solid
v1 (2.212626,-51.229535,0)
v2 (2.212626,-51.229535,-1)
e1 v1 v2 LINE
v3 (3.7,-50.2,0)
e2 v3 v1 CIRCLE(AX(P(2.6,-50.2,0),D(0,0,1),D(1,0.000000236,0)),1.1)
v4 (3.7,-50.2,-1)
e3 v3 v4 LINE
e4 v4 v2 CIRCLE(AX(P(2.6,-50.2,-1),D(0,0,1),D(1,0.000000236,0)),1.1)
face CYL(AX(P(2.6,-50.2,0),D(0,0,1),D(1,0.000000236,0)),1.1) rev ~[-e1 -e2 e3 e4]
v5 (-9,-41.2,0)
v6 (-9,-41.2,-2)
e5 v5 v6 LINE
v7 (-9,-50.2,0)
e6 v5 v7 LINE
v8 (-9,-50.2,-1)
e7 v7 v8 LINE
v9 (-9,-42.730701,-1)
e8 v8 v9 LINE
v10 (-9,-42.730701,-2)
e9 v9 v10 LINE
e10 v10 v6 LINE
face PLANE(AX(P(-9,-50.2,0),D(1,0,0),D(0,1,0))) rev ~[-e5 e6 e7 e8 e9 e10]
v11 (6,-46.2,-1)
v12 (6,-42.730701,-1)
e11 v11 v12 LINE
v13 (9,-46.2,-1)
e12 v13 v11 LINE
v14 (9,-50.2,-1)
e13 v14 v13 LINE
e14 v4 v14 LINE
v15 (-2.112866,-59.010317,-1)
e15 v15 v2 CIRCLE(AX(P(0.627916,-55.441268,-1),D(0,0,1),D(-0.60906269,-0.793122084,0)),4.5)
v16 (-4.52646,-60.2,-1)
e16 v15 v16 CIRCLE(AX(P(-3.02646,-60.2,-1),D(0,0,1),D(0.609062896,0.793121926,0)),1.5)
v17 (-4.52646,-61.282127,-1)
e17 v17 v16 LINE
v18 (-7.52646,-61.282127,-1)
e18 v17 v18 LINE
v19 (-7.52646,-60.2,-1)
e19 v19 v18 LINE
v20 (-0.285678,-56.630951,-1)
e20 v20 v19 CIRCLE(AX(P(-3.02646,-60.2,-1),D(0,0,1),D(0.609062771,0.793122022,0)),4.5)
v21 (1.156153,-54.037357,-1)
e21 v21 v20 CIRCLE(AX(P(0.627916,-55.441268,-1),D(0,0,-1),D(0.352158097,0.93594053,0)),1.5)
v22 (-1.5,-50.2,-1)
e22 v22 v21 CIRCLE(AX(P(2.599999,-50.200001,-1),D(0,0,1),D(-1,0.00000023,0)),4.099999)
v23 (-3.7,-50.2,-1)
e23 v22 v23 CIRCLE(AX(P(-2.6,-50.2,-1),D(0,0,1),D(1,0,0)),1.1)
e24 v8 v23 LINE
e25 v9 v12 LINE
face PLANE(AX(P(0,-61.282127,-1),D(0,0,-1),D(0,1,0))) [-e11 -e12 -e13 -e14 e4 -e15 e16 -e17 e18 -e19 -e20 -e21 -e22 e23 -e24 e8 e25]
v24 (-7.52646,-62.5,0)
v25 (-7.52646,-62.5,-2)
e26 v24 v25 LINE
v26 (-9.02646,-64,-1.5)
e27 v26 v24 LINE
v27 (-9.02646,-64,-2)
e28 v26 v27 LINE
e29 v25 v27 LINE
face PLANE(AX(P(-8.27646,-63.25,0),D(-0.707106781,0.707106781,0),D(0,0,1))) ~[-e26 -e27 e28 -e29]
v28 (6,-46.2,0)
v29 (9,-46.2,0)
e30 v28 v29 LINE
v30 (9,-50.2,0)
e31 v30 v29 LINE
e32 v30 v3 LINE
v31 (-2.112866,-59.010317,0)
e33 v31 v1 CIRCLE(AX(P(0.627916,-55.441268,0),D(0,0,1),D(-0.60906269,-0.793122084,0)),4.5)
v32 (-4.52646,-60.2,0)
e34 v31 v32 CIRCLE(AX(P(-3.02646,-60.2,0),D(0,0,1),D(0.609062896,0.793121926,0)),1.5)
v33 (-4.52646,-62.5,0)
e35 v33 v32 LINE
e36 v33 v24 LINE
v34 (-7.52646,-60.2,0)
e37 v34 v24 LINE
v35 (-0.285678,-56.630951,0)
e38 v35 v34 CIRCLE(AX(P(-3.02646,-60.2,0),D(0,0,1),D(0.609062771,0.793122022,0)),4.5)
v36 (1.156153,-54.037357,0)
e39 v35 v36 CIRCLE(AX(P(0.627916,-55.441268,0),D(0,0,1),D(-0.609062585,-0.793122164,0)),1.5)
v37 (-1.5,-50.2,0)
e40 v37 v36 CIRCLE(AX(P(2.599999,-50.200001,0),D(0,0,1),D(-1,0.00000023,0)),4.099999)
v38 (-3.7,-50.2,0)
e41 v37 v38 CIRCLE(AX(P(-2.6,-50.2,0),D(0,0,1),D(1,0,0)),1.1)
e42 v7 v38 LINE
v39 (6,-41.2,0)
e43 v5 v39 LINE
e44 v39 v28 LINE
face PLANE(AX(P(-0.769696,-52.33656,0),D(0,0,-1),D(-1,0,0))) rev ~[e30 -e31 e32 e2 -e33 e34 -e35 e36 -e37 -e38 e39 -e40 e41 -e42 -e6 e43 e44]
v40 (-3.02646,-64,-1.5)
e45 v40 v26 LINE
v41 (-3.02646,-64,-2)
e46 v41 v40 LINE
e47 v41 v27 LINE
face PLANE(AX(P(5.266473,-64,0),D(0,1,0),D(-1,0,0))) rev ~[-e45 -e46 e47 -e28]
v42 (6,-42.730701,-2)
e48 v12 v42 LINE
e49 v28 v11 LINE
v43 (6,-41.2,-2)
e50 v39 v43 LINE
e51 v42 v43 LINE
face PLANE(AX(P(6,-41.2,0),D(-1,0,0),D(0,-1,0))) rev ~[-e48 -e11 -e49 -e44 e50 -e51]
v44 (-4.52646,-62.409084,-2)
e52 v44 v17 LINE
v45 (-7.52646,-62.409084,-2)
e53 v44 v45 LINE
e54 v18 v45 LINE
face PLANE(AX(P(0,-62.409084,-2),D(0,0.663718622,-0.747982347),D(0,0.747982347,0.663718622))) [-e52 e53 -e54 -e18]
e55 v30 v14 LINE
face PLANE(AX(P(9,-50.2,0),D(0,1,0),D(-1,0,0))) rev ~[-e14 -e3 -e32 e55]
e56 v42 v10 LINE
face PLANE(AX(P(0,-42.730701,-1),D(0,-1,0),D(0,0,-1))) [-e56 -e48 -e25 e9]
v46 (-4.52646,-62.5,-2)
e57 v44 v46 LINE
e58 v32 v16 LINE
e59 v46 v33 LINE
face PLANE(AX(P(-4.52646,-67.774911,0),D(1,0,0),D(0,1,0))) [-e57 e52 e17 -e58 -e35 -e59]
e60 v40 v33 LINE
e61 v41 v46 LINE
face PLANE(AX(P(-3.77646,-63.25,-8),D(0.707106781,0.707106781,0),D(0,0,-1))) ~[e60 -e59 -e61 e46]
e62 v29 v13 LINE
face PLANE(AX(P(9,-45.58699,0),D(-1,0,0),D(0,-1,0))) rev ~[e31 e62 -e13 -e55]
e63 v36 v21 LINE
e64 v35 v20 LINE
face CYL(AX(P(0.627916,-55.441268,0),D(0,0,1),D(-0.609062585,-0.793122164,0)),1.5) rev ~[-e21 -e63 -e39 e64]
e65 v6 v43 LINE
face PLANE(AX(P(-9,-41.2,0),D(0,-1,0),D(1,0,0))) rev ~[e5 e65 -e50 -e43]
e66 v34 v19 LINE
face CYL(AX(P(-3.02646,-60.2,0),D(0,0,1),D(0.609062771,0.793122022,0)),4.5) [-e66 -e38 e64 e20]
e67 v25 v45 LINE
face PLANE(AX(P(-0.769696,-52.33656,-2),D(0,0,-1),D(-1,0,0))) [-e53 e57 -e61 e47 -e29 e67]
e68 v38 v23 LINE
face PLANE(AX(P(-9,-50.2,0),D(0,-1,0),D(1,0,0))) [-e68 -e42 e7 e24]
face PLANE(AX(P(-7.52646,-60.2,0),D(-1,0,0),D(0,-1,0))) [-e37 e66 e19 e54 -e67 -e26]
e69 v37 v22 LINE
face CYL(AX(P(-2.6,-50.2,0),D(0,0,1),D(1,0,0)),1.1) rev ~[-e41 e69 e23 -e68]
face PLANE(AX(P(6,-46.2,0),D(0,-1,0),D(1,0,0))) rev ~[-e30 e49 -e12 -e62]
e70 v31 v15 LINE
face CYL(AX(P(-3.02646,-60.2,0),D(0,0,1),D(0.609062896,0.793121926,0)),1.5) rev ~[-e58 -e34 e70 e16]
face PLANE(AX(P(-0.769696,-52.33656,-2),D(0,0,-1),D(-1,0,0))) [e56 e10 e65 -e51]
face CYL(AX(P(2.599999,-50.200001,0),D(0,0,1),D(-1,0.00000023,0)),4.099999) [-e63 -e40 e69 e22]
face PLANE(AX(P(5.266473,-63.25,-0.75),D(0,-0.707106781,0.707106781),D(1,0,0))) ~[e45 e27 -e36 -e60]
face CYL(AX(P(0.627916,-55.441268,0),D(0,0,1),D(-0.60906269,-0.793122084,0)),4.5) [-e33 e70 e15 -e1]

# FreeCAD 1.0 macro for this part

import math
import FreeCAD as App
import Part
import Sketcher


def edges_at(feature, points):
    """Names of the edges that pass closest to the given points."""
    edges = feature.Shape.Edges
    near = lambda p: min(range(len(edges)), key=lambda i: edges[i].distToShape(Part.Vertex(*p))[0])
    return sorted({f"Edge{near(p) + 1}" for p in points})


def add_polygon(sketch, points):
    """Adds a closed chain of lines whose ends are joined by coincident constraints."""
    first, n = sketch.GeometryCount, len(points)
    for a, b in zip(points, points[1:] + points[:1]):
        sketch.addGeometry(Part.LineSegment(App.Vector(*a, 0), App.Vector(*b, 0)), False)
    for i in range(n):
        sketch.addConstraint(Sketcher.Constraint("Coincident", first + i, 2, first + (i + 1) % n, 1))

doc = App.newDocument("Part")
body = doc.addObject("PartDesign::Body", "Body")

# Sketch on XZ plane
sketch1 = doc.addObject("Sketcher::SketchObject", "Sketch")
body.addObject(sketch1)
sketch1.AttachmentSupport = (doc.XZ_Plane, [""])
sketch1.MapMode = "FlatFace"
add_polygon(sketch1, [(-28, 0), (-28, -12), (28, -12), (28, 0)])  # lines 0-3
sketch1.addConstraint([
    Sketcher.Constraint("Vertical", 0),
    Sketcher.Constraint("Horizontal", 1),
    Sketcher.Constraint("Vertical", 2),
    Sketcher.Constraint("Horizontal", 3),
    Sketcher.Constraint("Symmetric", 2, 2, 3, 2, -1, 1),
    Sketcher.Constraint("DistanceX", 1, 1, 1, 2, 56.0),
    Sketcher.Constraint("DistanceY", 0, 2, 0, 1, 12.0),
])
pad1 = doc.addObject("PartDesign::Pad", "Pad")
body.addObject(pad1)
pad1.Profile = sketch1
pad1.Length = 64

# Sketch on XY plane
sketch2 = doc.addObject("Sketcher::SketchObject", "Sketch001")
body.addObject(sketch2)
sketch2.AttachmentSupport = (doc.XY_Plane, [""])
sketch2.MapMode = "FlatFace"
add_polygon(sketch2, [(-24.2, 0), (-24.2, -57.2), (-17.9, -57.2), (-17.9, -39.2), (17.9, -39.2), (17.9, -57.2), (24.2, -57.2), (24.2, 0)])  # lines 0-7
sketch2.addGeometry(Part.LineSegment(App.Vector(-9, -41.2, 0), App.Vector(-9, -50.2, 0)), False)  # 8
sketch2.addGeometry(Part.LineSegment(App.Vector(-9, -50.2, 0), App.Vector(-3.7, -50.2, 0)), False)  # 9
sketch2.addGeometry(Part.ArcOfCircle(Part.Circle(App.Vector(-2.6, -50.2, 0), App.Vector(0, 0, 1), 1.1), math.radians(0), math.radians(180)), False)  # 10
sketch2.addGeometry(Part.ArcOfCircle(Part.Circle(App.Vector(2.6, -50.2, 0), App.Vector(0, 0, 1), 4.1), math.radians(180), math.radians(249)), False)  # 11
sketch2.addGeometry(Part.ArcOfCircle(Part.Circle(App.Vector(0.6, -55.4, 0), App.Vector(0, 0, 1), 1.5), math.radians(-128), math.radians(69)), False)  # 12
sketch2.addGeometry(Part.ArcOfCircle(Part.Circle(App.Vector(-3, -60.2, 0), App.Vector(0, 0, 1), 4.5), math.radians(52), math.radians(180)), False)  # 13
sketch2.addGeometry(Part.LineSegment(App.Vector(-7.5, -60.2, 0), App.Vector(-7.5, -67.8, 0)), False)  # 14
sketch2.addGeometry(Part.LineSegment(App.Vector(-7.5, -67.8, 0), App.Vector(-4.5, -67.8, 0)), False)  # 15
sketch2.addGeometry(Part.LineSegment(App.Vector(-4.5, -67.8, 0), App.Vector(-4.5, -60.2, 0)), False)  # 16
sketch2.addGeometry(Part.ArcOfCircle(Part.Circle(App.Vector(-3, -60.2, 0), App.Vector(0, 0, 1), 1.5), math.radians(52), math.radians(180)), False)  # 17
sketch2.addGeometry(Part.ArcOfCircle(Part.Circle(App.Vector(0.6, -55.4, 0), App.Vector(0, 0, 1), 4.5), math.radians(-128), math.radians(69)), False)  # 18
sketch2.addGeometry(Part.ArcOfCircle(Part.Circle(App.Vector(2.6, -50.2, 0), App.Vector(0, 0, 1), 1.1), math.radians(0), math.radians(249)), False)  # 19
sketch2.addGeometry(Part.LineSegment(App.Vector(3.7, -50.2, 0), App.Vector(9, -50.2, 0)), False)  # 20
sketch2.addGeometry(Part.LineSegment(App.Vector(9, -50.2, 0), App.Vector(9, -46.2, 0)), False)  # 21
sketch2.addGeometry(Part.LineSegment(App.Vector(9, -46.2, 0), App.Vector(6, -46.2, 0)), False)  # 22
sketch2.addGeometry(Part.LineSegment(App.Vector(6, -46.2, 0), App.Vector(6, -41.2, 0)), False)  # 23
sketch2.addGeometry(Part.LineSegment(App.Vector(6, -41.2, 0), App.Vector(-9, -41.2, 0)), False)  # 24
sketch2.addConstraint([
    Sketcher.Constraint("Coincident", 8, 2, 9, 1),
    Sketcher.Constraint("Coincident", 9, 2, 10, 2),
    Sketcher.Constraint("Tangent", 10, 1, 11, 1),
    Sketcher.Constraint("Tangent", 11, 2, 12, 2),
    Sketcher.Constraint("Tangent", 12, 1, 13, 1),
    Sketcher.Constraint("Tangent", 13, 2, 14, 1),
    Sketcher.Constraint("Coincident", 14, 2, 15, 1),
    Sketcher.Constraint("Coincident", 15, 2, 16, 1),
    Sketcher.Constraint("Tangent", 16, 2, 17, 2),
    Sketcher.Constraint("Tangent", 17, 1, 18, 1),
    Sketcher.Constraint("Tangent", 18, 2, 19, 2),
    Sketcher.Constraint("Coincident", 19, 1, 20, 1),
    Sketcher.Constraint("Coincident", 20, 2, 21, 1),
    Sketcher.Constraint("Coincident", 21, 2, 22, 1),
    Sketcher.Constraint("Coincident", 22, 2, 23, 1),
    Sketcher.Constraint("Coincident", 23, 2, 24, 1),
    Sketcher.Constraint("Coincident", 24, 2, 8, 1),
    Sketcher.Constraint("Vertical", 0),
    Sketcher.Constraint("Horizontal", 1),
    Sketcher.Constraint("Vertical", 2),
    Sketcher.Constraint("Horizontal", 3),
    Sketcher.Constraint("Vertical", 4),
    Sketcher.Constraint("Horizontal", 5),
    Sketcher.Constraint("Vertical", 6),
    Sketcher.Constraint("Horizontal", 7),
    Sketcher.Constraint("Vertical", 8),
    Sketcher.Constraint("Horizontal", 9),
    Sketcher.Constraint("Vertical", 14),
    Sketcher.Constraint("Horizontal", 15),
    Sketcher.Constraint("Vertical", 16),
    Sketcher.Constraint("Horizontal", 20),
    Sketcher.Constraint("Vertical", 21),
    Sketcher.Constraint("Horizontal", 22),
    Sketcher.Constraint("Vertical", 23),
    Sketcher.Constraint("Horizontal", 24),
    Sketcher.Constraint("Coincident", 17, 3, 13, 3),
    Sketcher.Constraint("Coincident", 18, 3, 12, 3),
    Sketcher.Constraint("Coincident", 19, 3, 11, 3),
    Sketcher.Constraint("Equal", 12, 17),
    Sketcher.Constraint("Equal", 10, 19),
    Sketcher.Constraint("Symmetric", 6, 2, 7, 2, -1, 1),
    Sketcher.Constraint("Symmetric", 10, 3, 11, 3, -2),
    Sketcher.Constraint("Symmetric", 1, 2, 4, 2, -2),
    Sketcher.Constraint("Symmetric", 8, 2, 20, 2, -2),
    Sketcher.Constraint("Horizontal", 19, 3, 8, 2),
    Sketcher.Constraint("Equal", 15, 22),
    Sketcher.Constraint("Radius", 10, 1.1),
    Sketcher.Constraint("Radius", 11, 4.099999),
    Sketcher.Constraint("Radius", 12, 1.5),
    Sketcher.Constraint("DistanceX", 24, 2, 24, 1, 15.0),
    Sketcher.Constraint("DistanceY", 2, 1, 2, 2, 18.0),
    Sketcher.Constraint("DistanceY", 8, 2, 8, 1, 9.0),
    Sketcher.Constraint("DistanceY", 21, 1, 21, 2, 4.0),
    Sketcher.Constraint("DistanceX", 1, 1, 1, 2, 6.3),
    Sketcher.Constraint("DistanceX", 3, 1, 3, 2, 35.8),
    Sketcher.Constraint("DistanceY", 0, 2, 0, 1, 57.2),
    Sketcher.Constraint("DistanceY", 13, 3, 10, 3, 10.0),
    Sketcher.Constraint("DistanceY", 13, 3, 0, 2, 3.0),
    Sketcher.Constraint("DistanceY", 14, 2, 14, 1, 7.574911),
    Sketcher.Constraint("DistanceX", 13, 3, -1, 1, 3.02646),
])
pocket1 = doc.addObject("PartDesign::Pocket", "Pocket")
body.addObject(pocket1)
pocket1.Profile = sketch2
pocket1.Length = 8

# Sketch on XY plane
sketch3 = doc.addObject("Sketcher::SketchObject", "Sketch002")
body.addObject(sketch3)
sketch3.AttachmentSupport = (doc.XY_Plane, [""])
sketch3.MapMode = "FlatFace"
add_polygon(sketch3, [(-22.6, -12), (-25.2, -12), (-25.2, -58), (-21.2, -58), (-21.2, -13.4)])  # lines 0-4
add_polygon(sketch3, [(25.2, -12), (22.6, -12), (21.2, -13.4), (21.2, -58), (25.2, -58)])  # lines 5-9
sketch3.addConstraint([
    Sketcher.Constraint("Horizontal", 0),
    Sketcher.Constraint("Vertical", 1),
    Sketcher.Constraint("Horizontal", 2),
    Sketcher.Constraint("Vertical", 3),
    Sketcher.Constraint("Horizontal", 5),
    Sketcher.Constraint("Vertical", 7),
    Sketcher.Constraint("Horizontal", 8),
    Sketcher.Constraint("Vertical", 9),
    Sketcher.Constraint("Symmetric", 4, 2, 5, 2, -2),
    Sketcher.Constraint("Symmetric", 3, 2, 6, 2, -2),
    Sketcher.Constraint("Symmetric", 1, 2, 8, 2, -2),
    Sketcher.Constraint("Perpendicular", 4, 6),
    Sketcher.Constraint("DistanceX", 2, 1, 2, 2, 4.0),
    Sketcher.Constraint("DistanceY", 1, 2, 1, 1, 46.0),
    Sketcher.Constraint("Distance", 4, 2.000001),
    Sketcher.Constraint("DistanceY", 0, 2, -1, 1, 12.0),
    Sketcher.Constraint("DistanceX", 0, 2, -1, 1, 25.2),
])
pad2 = doc.addObject("PartDesign::Pad", "Pad001")
body.addObject(pad2)
pad2.Profile = sketch3
pad2.Length = 4.5
pad2.Reversed = True

# Sketch on XY plane
sketch4 = doc.addObject("Sketcher::SketchObject", "Sketch003")
body.addObject(sketch4)
sketch4.AttachmentSupport = (doc.XY_Plane, [""])
sketch4.MapMode = "FlatFace"
sketch4.addGeometry(Part.Circle(App.Vector(-12.5, -56, 0), App.Vector(0, 0, 1), 2), False)  # 0
sketch4.addGeometry(Part.Circle(App.Vector(12.5, -56, 0), App.Vector(0, 0, 1), 2), False)  # 1
sketch4.addGeometry(Part.LineSegment(App.Vector(-12.2, -29, 0), App.Vector(-12.2, -49.5, 0)), False)  # 2
sketch4.addGeometry(Part.LineSegment(App.Vector(-12.2, -49.5, 0), App.Vector(-3.8, -49.5, 0)), False)  # 3
sketch4.addGeometry(Part.LineSegment(App.Vector(-3.8, -49.5, 0), App.Vector(-3.8, -49, 0)), False)  # 4
sketch4.addGeometry(Part.LineSegment(App.Vector(-3.8, -49, 0), App.Vector(-11.2, -49, 0)), False)  # 5
sketch4.addGeometry(Part.ArcOfCircle(Part.Circle(App.Vector(-11.2, -48.5, 0), App.Vector(0, 0, 1), 0.5), math.radians(-180), math.radians(-90)), False)  # 6
sketch4.addGeometry(Part.LineSegment(App.Vector(-11.8, -48.5, 0), App.Vector(-11.8, -29, 0)), False)  # 7
sketch4.addGeometry(Part.LineSegment(App.Vector(-11.8, -29, 0), App.Vector(-12.2, -29, 0)), False)  # 8
sketch4.addGeometry(Part.LineSegment(App.Vector(12.2, -49.5, 0), App.Vector(12.2, -29, 0)), False)  # 9
sketch4.addGeometry(Part.LineSegment(App.Vector(12.2, -29, 0), App.Vector(11.8, -29, 0)), False)  # 10
sketch4.addGeometry(Part.LineSegment(App.Vector(11.8, -29, 0), App.Vector(11.8, -48.5, 0)), False)  # 11
sketch4.addGeometry(Part.ArcOfCircle(Part.Circle(App.Vector(11.2, -48.5, 0), App.Vector(0, 0, 1), 0.5), math.radians(-90), math.radians(0)), False)  # 12
sketch4.addGeometry(Part.LineSegment(App.Vector(11.2, -49, 0), App.Vector(3.8, -49, 0)), False)  # 13
sketch4.addGeometry(Part.LineSegment(App.Vector(3.8, -49, 0), App.Vector(3.8, -49.5, 0)), False)  # 14
sketch4.addGeometry(Part.LineSegment(App.Vector(3.8, -49.5, 0), App.Vector(12.2, -49.5, 0)), False)  # 15
add_polygon(sketch4, [(-15, -3.8), (-15, -8.8), (15, -8.8), (15, -3.8)])  # lines 16-19
sketch4.addConstraint([
    Sketcher.Constraint("Coincident", 2, 2, 3, 1),
    Sketcher.Constraint("Coincident", 3, 2, 4, 1),
    Sketcher.Constraint("Coincident", 4, 2, 5, 1),
    Sketcher.Constraint("Coincident", 5, 2, 6, 2),
    Sketcher.Constraint("Coincident", 6, 1, 7, 1),
    Sketcher.Constraint("Coincident", 7, 2, 8, 1),
    Sketcher.Constraint("Coincident", 8, 2, 2, 1),
    Sketcher.Constraint("Coincident", 9, 2, 10, 1),
    Sketcher.Constraint("Coincident", 10, 2, 11, 1),
    Sketcher.Constraint("Coincident", 11, 2, 12, 2),
    Sketcher.Constraint("Coincident", 12, 1, 13, 1),
    Sketcher.Constraint("Coincident", 13, 2, 14, 1),
    Sketcher.Constraint("Coincident", 14, 2, 15, 1),
    Sketcher.Constraint("Coincident", 15, 2, 9, 1),
    Sketcher.Constraint("Vertical", 2),
    Sketcher.Constraint("Horizontal", 3),
    Sketcher.Constraint("Vertical", 4),
    Sketcher.Constraint("Horizontal", 5),
    Sketcher.Constraint("Vertical", 7),
    Sketcher.Constraint("Horizontal", 8),
    Sketcher.Constraint("Vertical", 9),
    Sketcher.Constraint("Horizontal", 10),
    Sketcher.Constraint("Vertical", 11),
    Sketcher.Constraint("Horizontal", 13),
    Sketcher.Constraint("Vertical", 14),
    Sketcher.Constraint("Horizontal", 15),
    Sketcher.Constraint("Vertical", 16),
    Sketcher.Constraint("Horizontal", 17),
    Sketcher.Constraint("Vertical", 18),
    Sketcher.Constraint("Horizontal", 19),
    Sketcher.Constraint("Equal", 0, 1),
    Sketcher.Constraint("Equal", 6, 12),
    Sketcher.Constraint("Symmetric", 0, 3, 1, 3, -2),
    Sketcher.Constraint("Symmetric", 6, 3, 12, 3, -2),
    Sketcher.Constraint("Symmetric", 8, 2, 9, 2, -2),
    Sketcher.Constraint("Symmetric", 3, 2, 14, 2, -2),
    Sketcher.Constraint("Horizontal", 12, 3, 6, 1),
    Sketcher.Constraint("Horizontal", 6, 1, 11, 2),
    Sketcher.Constraint("Vertical", 6, 3, 5, 2),
    Sketcher.Constraint("Equal", 5, 13),
    Sketcher.Constraint("Equal", 10, 4),
    Sketcher.Constraint("Diameter", 0, 4.0),
    Sketcher.Constraint("Radius", 6, 0.500001),
    Sketcher.Constraint("DistanceX", 17, 1, 17, 2, 30.0),
    Sketcher.Constraint("DistanceY", 16, 2, 16, 1, 5.0),
    Sketcher.Constraint("DistanceX", 3, 1, 3, 2, 8.5),
    Sketcher.Constraint("DistanceX", 5, 2, 5, 1, 7.5),
    Sketcher.Constraint("DistanceY", 2, 2, 2, 1, 20.5),
    Sketcher.Constraint("DistanceY", 0, 3, -1, 1, 56.0),
    Sketcher.Constraint("DistanceY", 4, 2, -1, 1, 49.0),
    Sketcher.Constraint("DistanceX", 16, 2, -1, 1, 15.0),
    Sketcher.Constraint("DistanceX", 0, 3, 1, 3, 25.0),
    Sketcher.Constraint("DistanceX", 3, 2, 12, 3, 14.999999),
    Sketcher.Constraint("DistanceY", 16, 2, -1, 1, 8.8),
])
pocket2 = doc.addObject("PartDesign::Pocket", "Pocket001")
body.addObject(pocket2)
pocket2.Profile = sketch4
pocket2.Length = 10.5

# Sketch on XY plane
sketch5 = doc.addObject("Sketcher::SketchObject", "Sketch004")
body.addObject(sketch5)
sketch5.AttachmentSupport = (doc.XY_Plane, [""])
sketch5.MapMode = "FlatFace"
sketch5.addGeometry(Part.Circle(App.Vector(-12.5, -56, 0), App.Vector(0, 0, 1), 4), False)  # 0
sketch5.addGeometry(Part.Circle(App.Vector(12.5, -56, 0), App.Vector(0, 0, 1), 4), False)  # 1
add_polygon(sketch5, [(7, -38), (7, -45), (10, -45), (10, -38)])  # lines 2-5
sketch5.addConstraint([
    Sketcher.Constraint("Vertical", 2),
    Sketcher.Constraint("Horizontal", 3),
    Sketcher.Constraint("Vertical", 4),
    Sketcher.Constraint("Horizontal", 5),
    Sketcher.Constraint("Equal", 0, 1),
    Sketcher.Constraint("Symmetric", 0, 3, 1, 3, -2),
    Sketcher.Constraint("Diameter", 0, 8.0),
    Sketcher.Constraint("DistanceX", 3, 1, 3, 2, 3.0),
    Sketcher.Constraint("DistanceY", 2, 2, 2, 1, 7.0),
    Sketcher.Constraint("DistanceY", 0, 3, -1, 1, 56.0),
    Sketcher.Constraint("DistanceX", -1, 1, 2, 2, 7.0),
    Sketcher.Constraint("DistanceY", 2, 2, -1, 1, 45.0),
    Sketcher.Constraint("DistanceX", 0, 3, 1, 3, 25.0),
])
pocket3 = doc.addObject("PartDesign::Pocket", "Pocket002")
body.addObject(pocket3)
pocket3.Profile = sketch5
pocket3.Length = 3
doc.recompute()

chamfer = doc.addObject("PartDesign::Chamfer", "Chamfer")
body.addObject(chamfer)
chamfer.Base = (pocket3, edges_at(pocket3, [
    (28, -32, -12),
    (-28, -32, -12),
    (0, 0, -12),
    (0, -64, -12),
    (28, -32, 0),
    (28, 0, -6),
    (28, -64, -6),
    (-28, -32, 0),
    (-28, 0, -6),
    (-28, -64, -6),
    (11.737, -64, 0),
    (-4.526, -64, -4),
    (-6.026, -64, -8),
    (-7.526, -64, -4),
    (-17.763, -64, 0),
    (-26.1, 0, 0),
    (26.1, 0, 0),
]))
chamfer.Size = 1.5
body2 = doc.addObject("PartDesign::Body", "Body001")

# Sketch on XY plane
sketch6 = doc.addObject("Sketcher::SketchObject", "Sketch005")
body2.addObject(sketch6)
sketch6.AttachmentSupport = (doc.getObject("XY_Plane001"), [""])
sketch6.MapMode = "FlatFace"
add_polygon(sketch6, [(-9.5, -64), (5.3, -64), (9, -50.2), (9, -45.6), (6.4, -45.6), (6.4, -41.2), (-9, -41.2), (-9, -50.2), (-7.7, -56.9)])  # lines 0-8
sketch6.addConstraint([
    Sketcher.Constraint("Horizontal", 0),
    Sketcher.Constraint("Vertical", 2),
    Sketcher.Constraint("Horizontal", 3),
    Sketcher.Constraint("Vertical", 4),
    Sketcher.Constraint("Horizontal", 5),
    Sketcher.Constraint("Vertical", 6),
    Sketcher.Constraint("Symmetric", 1, 2, 6, 2, -2),
    Sketcher.Constraint("DistanceY", 6, 2, 6, 1, 9.0),
    Sketcher.Constraint("DistanceY", 0, 2, -1, 1, 64.0),
    Sketcher.Constraint("DistanceX", -1, 1, 1, 2, 9.0),
    Sketcher.Constraint("DistanceY", 1, 2, -1, 1, 50.2),
    Sketcher.Constraint("DistanceX", 0, 1, 0, 2, 14.810751),
    Sketcher.Constraint("DistanceY", 2, 1, 2, 2, 4.61301),
    Sketcher.Constraint("Distance", 7, 6.828678),
    Sketcher.Constraint("Distance", 8, 7.347109),
    Sketcher.Constraint("DistanceX", 3, 2, 3, 1, 2.552393),
    Sketcher.Constraint("DistanceX", 7, 2, -1, 1, 7.665841),
])
pad3 = doc.addObject("PartDesign::Pad", "Pad002")
body2.addObject(pad3)
pad3.Profile = sketch6
pad3.Length = 2
pad3.Reversed = True
doc.recompute()

chamfer2 = doc.addObject("PartDesign::Chamfer", "Chamfer001")
body2.addObject(chamfer2)
chamfer2.Base = (pad3, edges_at(pad3, [(-2.139, -64, 0)]))
chamfer2.Size = 1.5
doc.recompute()

boolean = doc.addObject("PartDesign::Boolean", "Boolean")
body2.addObject(boolean)
boolean.Type = "Cut"
boolean.addObjects([body])

# Sketch on YZ plane
sketch7 = doc.addObject("Sketcher::SketchObject", "Sketch006")
body2.addObject(sketch7)
sketch7.AttachmentSupport = (doc.getObject("YZ_Plane001"), [""])
sketch7.MapMode = "FlatFace"
add_polygon(sketch7, [(-62.4, -2), (-42.7, -2), (-42.7, -1), (-61.3, -1)])  # lines 0-3
sketch7.addConstraint([
    Sketcher.Constraint("Horizontal", 0),
    Sketcher.Constraint("Vertical", 1),
    Sketcher.Constraint("Horizontal", 2),
    Sketcher.Constraint("DistanceY", 1, 1, 1, 2, 1.0),
    Sketcher.Constraint("DistanceY", 0, 2, -1, 1, 2.0),
    Sketcher.Constraint("DistanceX", 0, 2, -1, 1, 42.730701),
    Sketcher.Constraint("DistanceX", 0, 1, 0, 2, 19.678383),
    Sketcher.Constraint("DistanceX", 2, 2, 2, 1, 18.551426),
])
pocket4 = doc.addObject("PartDesign::Pocket", "Pocket003")
body2.addObject(pocket4)
pocket4.Profile = sketch7
pocket4.Type = "ThroughAll"
pocket4.Midplane = True

doc.recompute()
